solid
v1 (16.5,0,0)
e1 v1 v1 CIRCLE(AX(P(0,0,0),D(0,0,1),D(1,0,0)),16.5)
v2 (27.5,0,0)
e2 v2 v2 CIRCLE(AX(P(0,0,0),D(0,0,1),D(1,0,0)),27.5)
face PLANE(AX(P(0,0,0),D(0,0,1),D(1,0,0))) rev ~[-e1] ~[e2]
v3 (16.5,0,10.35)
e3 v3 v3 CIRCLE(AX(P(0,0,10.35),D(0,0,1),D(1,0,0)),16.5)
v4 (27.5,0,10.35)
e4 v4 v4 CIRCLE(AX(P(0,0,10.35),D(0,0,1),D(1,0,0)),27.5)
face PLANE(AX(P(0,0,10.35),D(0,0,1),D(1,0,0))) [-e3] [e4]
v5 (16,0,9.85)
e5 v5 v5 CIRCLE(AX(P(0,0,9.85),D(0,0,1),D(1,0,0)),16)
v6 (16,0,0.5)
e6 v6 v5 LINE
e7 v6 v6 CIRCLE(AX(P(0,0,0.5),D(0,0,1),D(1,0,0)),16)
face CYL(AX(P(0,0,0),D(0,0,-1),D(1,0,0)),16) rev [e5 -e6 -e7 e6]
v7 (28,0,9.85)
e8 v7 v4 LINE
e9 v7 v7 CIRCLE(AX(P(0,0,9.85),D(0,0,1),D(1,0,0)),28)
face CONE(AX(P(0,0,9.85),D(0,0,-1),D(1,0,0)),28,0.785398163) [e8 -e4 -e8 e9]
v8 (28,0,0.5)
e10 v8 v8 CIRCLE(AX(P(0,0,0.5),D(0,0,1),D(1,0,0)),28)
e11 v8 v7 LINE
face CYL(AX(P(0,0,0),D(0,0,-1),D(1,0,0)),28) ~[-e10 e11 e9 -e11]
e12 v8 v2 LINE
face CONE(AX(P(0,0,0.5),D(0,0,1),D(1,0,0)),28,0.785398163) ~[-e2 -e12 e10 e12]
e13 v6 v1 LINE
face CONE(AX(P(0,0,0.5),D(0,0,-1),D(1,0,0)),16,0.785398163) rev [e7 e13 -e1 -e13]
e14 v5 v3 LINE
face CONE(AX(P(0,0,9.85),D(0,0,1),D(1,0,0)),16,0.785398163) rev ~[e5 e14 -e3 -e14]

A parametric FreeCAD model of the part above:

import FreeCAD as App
import Part
import Sketcher

V = App.Vector
Q = App.Units.Quantity


def edges_at(feature, points):
    """Names of the edges that pass closest to the given points."""
    edges = feature.Shape.Edges
    near = lambda p: min(range(len(edges)), key=lambda i: edges[i].distToShape(Part.Vertex(*p))[0])
    return sorted({f"Edge{near(p) + 1}" for p in points})

doc = App.newDocument("Part")
params = doc.addObject("Spreadsheet::Sheet", "Params")
for row, (alias, value) in enumerate([
    ("sketch1_diameter", "56 mm"),
    ("sketch1_diameter2", "32 mm"),
    ("pad1_length", "10.35 mm"),
    ("chamfer_size", "0.5 mm"),
], start=1):
    params.set(f"A{row}", alias)
    params.set(f"B{row}", "=" + value)
    params.setAlias(f"B{row}", alias)

body = doc.addObject("PartDesign::Body", "Body")

# Sketch on XY plane
sketch1 = doc.addObject("Sketcher::SketchObject", "Sketch")
body.addObject(sketch1)
sketch1.AttachmentSupport = (doc.XY_Plane, [""])
sketch1.MapMode = "FlatFace"
sketch1.addGeometry([
    Part.Circle(V(0, 0, 0), V(0, 0, 1), 28),
    Part.Circle(V(0, 0, 0), V(0, 0, 1), 16),
], False)
sketch1.addConstraint([
    Sketcher.Constraint("Coincident", 0, 3, -1, 1),
    Sketcher.Constraint("Coincident", 1, 3, -1, 1),
    Sketcher.Constraint("Diameter", 0, Q("56 mm")),
    Sketcher.Constraint("Diameter", 1, Q("32 mm")),
])
sketch1.setExpression("Constraints[2]", "Params.sketch1_diameter")
sketch1.setExpression("Constraints[3]", "Params.sketch1_diameter2")
pad1 = doc.addObject("PartDesign::Pad", "Pad")
body.addObject(pad1)
pad1.Profile = sketch1
pad1.setExpression("Length", "Params.pad1_length")
doc.recompute()

chamfer = doc.addObject("PartDesign::Chamfer", "Chamfer")
body.addObject(chamfer)
chamfer.Base = (pad1, edges_at(pad1, [
    (-16, 0, 10.35),
    (-16, 0, 0),
    (-28, 0, 10.35),
    (-28, 0, 0),
]))
chamfer.setExpression("Size", "Params.chamfer_size")

doc.recompute()
